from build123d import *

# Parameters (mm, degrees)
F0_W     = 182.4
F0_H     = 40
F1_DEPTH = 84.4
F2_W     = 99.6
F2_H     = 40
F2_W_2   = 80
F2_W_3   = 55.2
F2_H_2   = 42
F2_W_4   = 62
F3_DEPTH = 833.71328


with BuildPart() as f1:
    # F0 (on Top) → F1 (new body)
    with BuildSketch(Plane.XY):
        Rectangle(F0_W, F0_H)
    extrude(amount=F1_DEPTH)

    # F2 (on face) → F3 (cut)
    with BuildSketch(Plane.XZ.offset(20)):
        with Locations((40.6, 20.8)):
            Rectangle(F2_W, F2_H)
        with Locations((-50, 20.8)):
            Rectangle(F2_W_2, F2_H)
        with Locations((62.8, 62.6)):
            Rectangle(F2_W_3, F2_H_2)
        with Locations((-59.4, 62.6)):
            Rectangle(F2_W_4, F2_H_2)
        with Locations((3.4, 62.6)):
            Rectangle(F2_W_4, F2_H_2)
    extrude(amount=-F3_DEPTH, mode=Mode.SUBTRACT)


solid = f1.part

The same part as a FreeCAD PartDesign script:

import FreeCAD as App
import Part
import Sketcher

V = App.Vector
Q = App.Units.Quantity


def add_polygon(sketch, points):
    """Adds a closed chain of lines whose ends are joined by coincident constraints."""
    first, n = sketch.GeometryCount, len(points)
    for a, b in zip(points, points[1:] + points[:1]):
        sketch.addGeometry(Part.LineSegment(App.Vector(*a, 0), App.Vector(*b, 0)), False)
    for i in range(n):
        sketch.addConstraint(Sketcher.Constraint("Coincident", first + i, 2, first + (i + 1) % n, 1))

doc = App.newDocument("Part")
body = doc.addObject("PartDesign::Body", "Body")

sketch1 = body.newObject("Sketcher::SketchObject", "Sketch")
sketch1.AttachmentSupport = (doc.getObject("XY_Plane"), [""])
sketch1.MapMode = "FlatFace"
add_polygon(sketch1, [(-91.2, 20), (-91.2, -20), (91.2, -20), (91.2, 20)])
sketch1.addConstraint([
    Sketcher.Constraint("Vertical", 0),
    Sketcher.Constraint("Horizontal", 1),
    Sketcher.Constraint("Vertical", 2),
    Sketcher.Constraint("Horizontal", 3),
    Sketcher.Constraint("Symmetric", 0, 2, 2, 2, -1, 1),
    Sketcher.Constraint("DistanceY", 0, 2, 0, 1, Q("40 mm")),
    Sketcher.Constraint("DistanceX", 1, 1, 1, 2, Q("182.4 mm")),
])
pad1 = body.newObject("PartDesign::Pad", "Pad")
pad1.Profile = sketch1
pad1.Length = 84.4

sketch2 = body.newObject("Sketcher::SketchObject", "Sketch001")
sketch2.AttachmentSupport = (doc.getObject("XZ_Plane"), [""])
sketch2.MapMode = "FlatFace"
sketch2.AttachmentOffset = App.Placement(V(0, 0, 20), App.Rotation())
add_polygon(sketch2, [(-9.2, 40.8), (-9.2, 0.8), (90.4, 0.8), (90.4, 40.8)])
add_polygon(sketch2, [(-90, 40.8), (-90, 0.8), (-10, 0.8), (-10, 40.8)])
add_polygon(sketch2, [(35.2, 83.6), (35.2, 41.6), (90.4, 41.6), (90.4, 83.6)])
add_polygon(sketch2, [(-90.4, 83.6), (-90.4, 41.6), (-28.4, 41.6), (-28.4, 83.6)])
add_polygon(sketch2, [(-27.6, 83.6), (-27.6, 41.6), (34.4, 41.6), (34.4, 83.6)])
sketch2.addConstraint([
    Sketcher.Constraint("Vertical", 0),
    Sketcher.Constraint("Horizontal", 1),
    Sketcher.Constraint("Vertical", 2),
    Sketcher.Constraint("Horizontal", 3),
    Sketcher.Constraint("Vertical", 4),
    Sketcher.Constraint("Horizontal", 5),
    Sketcher.Constraint("Vertical", 6),
    Sketcher.Constraint("Horizontal", 7),
    Sketcher.Constraint("Vertical", 8),
    Sketcher.Constraint("Horizontal", 9),
    Sketcher.Constraint("Vertical", 10),
    Sketcher.Constraint("Horizontal", 11),
    Sketcher.Constraint("Vertical", 12),
    Sketcher.Constraint("Horizontal", 13),
    Sketcher.Constraint("Vertical", 14),
    Sketcher.Constraint("Horizontal", 15),
    Sketcher.Constraint("Vertical", 16),
    Sketcher.Constraint("Horizontal", 17),
    Sketcher.Constraint("Vertical", 18),
    Sketcher.Constraint("Horizontal", 19),
    Sketcher.Constraint("Symmetric", 9, 2, 12, 2, -2),
    Sketcher.Constraint("Horizontal", 1, 2, 4, 2),
    Sketcher.Constraint("Horizontal", 3, 2, 6, 2),
    Sketcher.Constraint("Horizontal", 11, 2, 14, 2),
    Sketcher.Constraint("Horizontal", 13, 2, 16, 2),
    Sketcher.Constraint("Horizontal", 15, 2, 18, 2),
    Sketcher.Constraint("Vertical", 2, 2, 9, 2),
    Sketcher.Constraint("Equal", 15, 17),
    Sketcher.Constraint("DistanceX", 5, 1, 5, 2, Q("80 mm")),
    Sketcher.Constraint("DistanceX", 13, 1, 13, 2, Q("62 mm")),
    Sketcher.Constraint("DistanceY", 0, 2, 0, 1, Q("40 mm")),
    Sketcher.Constraint("DistanceY", 8, 2, 8, 1, Q("42 mm")),
    Sketcher.Constraint("DistanceX", 1, 1, 1, 2, Q("99.6 mm")),
    Sketcher.Constraint("DistanceX", 9, 1, 9, 2, Q("55.2 mm")),
    Sketcher.Constraint("DistanceX", 4, 2, -1, 1, Q("90 mm")),
    Sketcher.Constraint("DistanceX", 17, 2, 9, 2, Q("56 mm")),
    Sketcher.Constraint("DistanceX", 0, 2, -1, 1, Q("9.2 mm")),
    Sketcher.Constraint("DistanceY", -1, 1, 0, 2, Q("0.8 mm")),
    Sketcher.Constraint("DistanceY", -1, 1, 8, 2, Q("41.6 mm")),
])
pocket1 = body.newObject("PartDesign::Pocket", "Pocket")
pocket1.Profile = sketch2
pocket1.Length = 833.71328

doc.recompute()
